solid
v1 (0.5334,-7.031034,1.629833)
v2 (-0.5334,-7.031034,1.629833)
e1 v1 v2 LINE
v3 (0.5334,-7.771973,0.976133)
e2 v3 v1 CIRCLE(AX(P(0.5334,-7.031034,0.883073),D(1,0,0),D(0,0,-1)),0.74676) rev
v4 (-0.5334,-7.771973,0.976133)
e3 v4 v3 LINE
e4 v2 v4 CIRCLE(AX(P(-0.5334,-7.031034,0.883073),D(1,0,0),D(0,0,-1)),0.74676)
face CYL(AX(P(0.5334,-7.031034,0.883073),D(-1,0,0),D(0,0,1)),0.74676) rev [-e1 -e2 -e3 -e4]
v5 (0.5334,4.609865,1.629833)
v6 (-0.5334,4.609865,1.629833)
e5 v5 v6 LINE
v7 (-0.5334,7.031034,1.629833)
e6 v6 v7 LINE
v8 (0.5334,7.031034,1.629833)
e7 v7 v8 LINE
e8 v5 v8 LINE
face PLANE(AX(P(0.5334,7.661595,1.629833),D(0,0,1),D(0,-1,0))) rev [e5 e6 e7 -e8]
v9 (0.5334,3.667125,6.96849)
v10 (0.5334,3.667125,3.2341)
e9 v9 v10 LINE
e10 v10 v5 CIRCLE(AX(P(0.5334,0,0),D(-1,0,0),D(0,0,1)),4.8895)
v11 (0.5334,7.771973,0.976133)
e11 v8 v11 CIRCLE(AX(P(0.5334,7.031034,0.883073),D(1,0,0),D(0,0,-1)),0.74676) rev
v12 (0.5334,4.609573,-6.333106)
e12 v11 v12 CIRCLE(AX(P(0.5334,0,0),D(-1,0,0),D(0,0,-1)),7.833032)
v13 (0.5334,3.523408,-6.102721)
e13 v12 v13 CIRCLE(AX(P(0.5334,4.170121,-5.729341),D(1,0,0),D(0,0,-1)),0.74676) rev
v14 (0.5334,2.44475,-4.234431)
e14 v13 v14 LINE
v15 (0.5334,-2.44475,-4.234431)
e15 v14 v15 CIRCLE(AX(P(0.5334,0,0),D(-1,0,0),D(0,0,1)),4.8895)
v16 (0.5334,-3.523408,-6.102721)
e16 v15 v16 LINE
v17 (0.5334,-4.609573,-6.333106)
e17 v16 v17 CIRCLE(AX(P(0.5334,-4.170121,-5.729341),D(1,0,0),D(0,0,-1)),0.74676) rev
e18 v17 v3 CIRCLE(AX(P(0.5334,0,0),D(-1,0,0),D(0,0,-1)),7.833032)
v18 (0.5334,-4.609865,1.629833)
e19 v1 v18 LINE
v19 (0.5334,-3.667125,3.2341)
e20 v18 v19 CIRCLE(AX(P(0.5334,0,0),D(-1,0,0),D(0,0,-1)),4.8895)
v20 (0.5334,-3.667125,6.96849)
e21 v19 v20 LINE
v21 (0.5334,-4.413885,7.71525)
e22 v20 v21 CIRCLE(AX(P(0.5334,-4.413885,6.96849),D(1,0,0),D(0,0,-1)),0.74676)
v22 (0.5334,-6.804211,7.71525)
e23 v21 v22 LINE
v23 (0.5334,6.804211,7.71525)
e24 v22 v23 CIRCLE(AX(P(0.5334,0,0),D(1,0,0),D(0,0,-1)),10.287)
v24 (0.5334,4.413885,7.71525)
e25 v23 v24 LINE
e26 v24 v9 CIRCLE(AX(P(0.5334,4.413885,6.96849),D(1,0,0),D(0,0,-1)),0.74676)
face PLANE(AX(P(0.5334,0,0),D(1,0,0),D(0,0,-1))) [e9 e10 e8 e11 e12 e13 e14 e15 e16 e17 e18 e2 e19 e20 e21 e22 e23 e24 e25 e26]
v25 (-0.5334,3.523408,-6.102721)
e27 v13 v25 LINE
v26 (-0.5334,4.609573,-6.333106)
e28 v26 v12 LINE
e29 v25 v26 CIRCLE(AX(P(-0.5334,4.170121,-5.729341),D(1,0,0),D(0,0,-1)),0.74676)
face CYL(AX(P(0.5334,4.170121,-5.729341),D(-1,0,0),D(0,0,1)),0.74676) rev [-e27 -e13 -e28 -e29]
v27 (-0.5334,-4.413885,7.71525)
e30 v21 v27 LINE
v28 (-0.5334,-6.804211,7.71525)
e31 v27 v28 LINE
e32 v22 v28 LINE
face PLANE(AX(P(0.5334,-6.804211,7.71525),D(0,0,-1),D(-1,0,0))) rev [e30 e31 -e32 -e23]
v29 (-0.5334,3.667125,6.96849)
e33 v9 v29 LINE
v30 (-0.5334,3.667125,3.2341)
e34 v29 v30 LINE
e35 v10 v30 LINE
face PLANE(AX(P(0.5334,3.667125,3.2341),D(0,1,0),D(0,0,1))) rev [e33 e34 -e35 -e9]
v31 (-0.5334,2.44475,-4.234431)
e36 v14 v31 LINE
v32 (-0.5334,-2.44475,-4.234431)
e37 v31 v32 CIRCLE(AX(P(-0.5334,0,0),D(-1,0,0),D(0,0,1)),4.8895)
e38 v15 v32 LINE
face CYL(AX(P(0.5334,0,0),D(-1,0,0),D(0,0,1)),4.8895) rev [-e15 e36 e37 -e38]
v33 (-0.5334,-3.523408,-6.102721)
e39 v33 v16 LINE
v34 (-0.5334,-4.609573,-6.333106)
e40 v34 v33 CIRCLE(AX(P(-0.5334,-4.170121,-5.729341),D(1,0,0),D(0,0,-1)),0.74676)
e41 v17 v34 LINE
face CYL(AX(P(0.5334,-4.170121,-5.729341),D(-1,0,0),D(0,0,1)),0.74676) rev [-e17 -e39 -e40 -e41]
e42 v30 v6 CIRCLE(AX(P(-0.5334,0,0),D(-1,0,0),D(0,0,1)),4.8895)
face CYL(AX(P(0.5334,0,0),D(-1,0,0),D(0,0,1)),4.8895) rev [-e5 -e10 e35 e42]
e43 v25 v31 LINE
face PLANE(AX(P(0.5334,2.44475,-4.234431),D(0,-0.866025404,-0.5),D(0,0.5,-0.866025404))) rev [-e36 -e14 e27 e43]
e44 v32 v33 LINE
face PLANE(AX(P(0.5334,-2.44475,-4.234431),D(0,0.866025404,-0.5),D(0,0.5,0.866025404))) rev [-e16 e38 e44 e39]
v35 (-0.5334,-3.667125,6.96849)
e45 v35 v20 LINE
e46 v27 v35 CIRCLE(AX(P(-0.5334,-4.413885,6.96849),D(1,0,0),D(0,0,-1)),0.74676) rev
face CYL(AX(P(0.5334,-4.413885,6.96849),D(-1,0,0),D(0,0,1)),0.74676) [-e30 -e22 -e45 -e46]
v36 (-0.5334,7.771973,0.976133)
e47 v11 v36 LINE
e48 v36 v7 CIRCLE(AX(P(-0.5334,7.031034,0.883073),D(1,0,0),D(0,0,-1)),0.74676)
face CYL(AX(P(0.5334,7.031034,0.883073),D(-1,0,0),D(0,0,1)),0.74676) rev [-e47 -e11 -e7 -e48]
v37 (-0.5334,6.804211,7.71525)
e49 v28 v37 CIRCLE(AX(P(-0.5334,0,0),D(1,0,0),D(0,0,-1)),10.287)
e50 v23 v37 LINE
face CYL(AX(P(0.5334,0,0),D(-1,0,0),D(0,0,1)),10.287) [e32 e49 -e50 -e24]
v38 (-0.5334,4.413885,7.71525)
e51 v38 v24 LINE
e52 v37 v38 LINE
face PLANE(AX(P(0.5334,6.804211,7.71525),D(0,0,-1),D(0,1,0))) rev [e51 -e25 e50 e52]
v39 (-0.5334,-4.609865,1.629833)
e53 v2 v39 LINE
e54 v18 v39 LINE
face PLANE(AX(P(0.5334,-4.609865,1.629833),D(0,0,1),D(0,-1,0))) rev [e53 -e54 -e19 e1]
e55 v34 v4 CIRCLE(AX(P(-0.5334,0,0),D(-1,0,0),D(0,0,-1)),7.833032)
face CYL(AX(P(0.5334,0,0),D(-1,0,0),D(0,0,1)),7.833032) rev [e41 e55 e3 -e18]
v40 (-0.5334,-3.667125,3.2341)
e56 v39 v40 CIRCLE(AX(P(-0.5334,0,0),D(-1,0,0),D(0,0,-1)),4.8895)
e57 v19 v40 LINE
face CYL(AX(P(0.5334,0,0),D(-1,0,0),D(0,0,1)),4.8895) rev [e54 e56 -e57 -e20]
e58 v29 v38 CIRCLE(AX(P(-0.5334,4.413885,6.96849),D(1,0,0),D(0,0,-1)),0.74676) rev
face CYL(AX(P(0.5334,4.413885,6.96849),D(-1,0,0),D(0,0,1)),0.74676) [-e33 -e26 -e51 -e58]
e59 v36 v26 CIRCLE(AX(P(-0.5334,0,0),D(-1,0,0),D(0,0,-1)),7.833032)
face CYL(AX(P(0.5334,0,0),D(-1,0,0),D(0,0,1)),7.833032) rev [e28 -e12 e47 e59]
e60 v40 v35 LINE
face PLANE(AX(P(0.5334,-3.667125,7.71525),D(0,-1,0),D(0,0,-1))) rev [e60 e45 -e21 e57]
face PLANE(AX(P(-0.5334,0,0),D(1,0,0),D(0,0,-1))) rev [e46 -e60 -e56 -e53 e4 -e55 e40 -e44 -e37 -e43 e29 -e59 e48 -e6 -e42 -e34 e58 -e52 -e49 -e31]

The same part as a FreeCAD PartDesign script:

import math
import FreeCAD as App
import Part
import Sketcher
from FreeCAD import Vector
Q = App.Units.Quantity


def edges_at(feature, points):
    """Names of the edges that pass closest to the given points."""
    edges = feature.Shape.Edges
    near = lambda p: min(range(len(edges)), key=lambda i: edges[i].distToShape(Part.Vertex(*p))[0])
    return sorted({f"Edge{near(p) + 1}" for p in points})

doc = App.newDocument("Part")
params = doc.addObject("Spreadsheet::Sheet", "Params")
for row, (alias, value) in enumerate([
    ("sketch1_radius", "0.405 in"),
    ("pad1_length", "0.042 in"),
    ("fillet_radius", "0.0294 in"),
], start=1):
    params.set(f"A{row}", alias)
    params.set(f"B{row}", "=" + value)
    params.setAlias(f"B{row}", alias)

body = doc.addObject("PartDesign::Body", "Body")

# Sketch on YZ plane
sketch1 = body.newObject("Sketcher::SketchObject", "Sketch")
sketch1.AttachmentSupport = (doc.getObject("YZ_Plane"), [""])
sketch1.MapMode = "FlatFace"
sketch1.addGeometry([
    Part.LineSegment(Vector(3.7, 7.7, 0), Vector(3.7, 3.2, 0)),  # 0
    Part.ArcOfCircle(Part.Circle(Vector(0, 0, 0), Vector(0, 0, 1), 4.9), math.radians(19), math.radians(41)),  # 1
    Part.LineSegment(Vector(4.6, 1.6, 0), Vector(7.7, 1.6, 0)),  # 2
    Part.ArcOfCircle(Part.Circle(Vector(0, 0, 0), Vector(0, 0, 1), 7.8), math.radians(-60), math.radians(12)),  # 3
    Part.LineSegment(Vector(3.9, -6.8, 0), Vector(2.4, -4.2, 0)),  # 4
    Part.ArcOfCircle(Part.Circle(Vector(0, 0, 0), Vector(0, 0, 1), 4.9), math.radians(-120), math.radians(-60)),  # 5
    Part.LineSegment(Vector(-2.4, -4.2, 0), Vector(-3.9, -6.8, 0)),  # 6
    Part.ArcOfCircle(Part.Circle(Vector(0, 0, 0), Vector(0, 0, 1), 7.8), math.radians(168), math.radians(240)),  # 7
    Part.LineSegment(Vector(-7.7, 1.6, 0), Vector(-4.6, 1.6, 0)),  # 8
    Part.ArcOfCircle(Part.Circle(Vector(0, 0, 0), Vector(0, 0, 1), 4.9), math.radians(139), math.radians(161)),  # 9
    Part.LineSegment(Vector(-3.7, 3.2, 0), Vector(-3.7, 7.7, 0)),  # 10
    Part.LineSegment(Vector(-3.7, 7.7, 0), Vector(-6.8, 7.7, 0)),  # 11
    Part.ArcOfCircle(Part.Circle(Vector(0, 0, 0), Vector(0, 0, 1), 10.3), math.radians(131), math.radians(409)),  # 12
    Part.LineSegment(Vector(6.8, 7.7, 0), Vector(3.7, 7.7, 0)),  # 13
], False)
sketch1.addConstraint([
    Sketcher.Constraint("Coincident", 0, 2, 1, 2),
    Sketcher.Constraint("Coincident", 1, 1, 2, 1),
    Sketcher.Constraint("Coincident", 2, 2, 3, 2),
    Sketcher.Constraint("Coincident", 3, 1, 4, 1),
    Sketcher.Constraint("Coincident", 4, 2, 5, 2),
    Sketcher.Constraint("Coincident", 5, 1, 6, 1),
    Sketcher.Constraint("Coincident", 6, 2, 7, 2),
    Sketcher.Constraint("Coincident", 7, 1, 8, 1),
    Sketcher.Constraint("Coincident", 8, 2, 9, 2),
    Sketcher.Constraint("Coincident", 9, 1, 10, 1),
    Sketcher.Constraint("Coincident", 10, 2, 11, 1),
    Sketcher.Constraint("Coincident", 11, 2, 12, 1),
    Sketcher.Constraint("Coincident", 12, 2, 13, 1),
    Sketcher.Constraint("Coincident", 13, 2, 0, 1),
    Sketcher.Constraint("Vertical", 0),
    Sketcher.Constraint("Horizontal", 2),
    Sketcher.Constraint("Horizontal", 8),
    Sketcher.Constraint("Vertical", 10),
    Sketcher.Constraint("Horizontal", 11),
    Sketcher.Constraint("Horizontal", 13),
    Sketcher.Constraint("Coincident", 1, 3, -1, 1),
    Sketcher.Constraint("Coincident", 3, 3, -1, 1),
    Sketcher.Constraint("Coincident", 5, 3, -1, 1),
    Sketcher.Constraint("Coincident", 7, 3, -1, 1),
    Sketcher.Constraint("Coincident", 9, 3, -1, 1),
    Sketcher.Constraint("Coincident", 12, 3, -1, 1),
    Sketcher.Constraint("Equal", 1, 5),
    Sketcher.Constraint("Equal", 3, 7),
    Sketcher.Constraint("Equal", 5, 9),
    Sketcher.Constraint("Symmetric", 10, 2, 13, 2, -2),
    Sketcher.Constraint("Horizontal", 4, 2, 5, 1),
    Sketcher.Constraint("Horizontal", 3, 1, 6, 2),
    Sketcher.Constraint("Horizontal", 2, 2, 7, 1),
    Sketcher.Constraint("Angle", 4, Q("120 deg")),
    Sketcher.Constraint("Radius", 12, Q("0.405 in")),
    Sketcher.Constraint("Radius", 1, Q("0.1925 in")),
    Sketcher.Constraint("Radius", 3, 7.833032),
    Sketcher.Constraint("DistanceX", 5, 1, 4, 2, Q("0.1925 in")),
    Sketcher.Constraint("DistanceX", 2, 1, 2, 2, 3.05173),
    Sketcher.Constraint("DistanceY", 0, 2, 0, 1, 4.48115),
    Sketcher.Constraint("DistanceY", -1, 1, 0, 2, 3.2341),
])
sketch1.setExpression("Constraints[34]", "Params.sketch1_radius")
pad1 = body.newObject("PartDesign::Pad", "Pad")
pad1.Profile = sketch1
pad1.setExpression("Length", "Params.pad1_length")
pad1.Midplane = True
doc.recompute()

fillet = body.newObject("PartDesign::Fillet", "Fillet")
fillet.Base = (pad1, edges_at(pad1, [
    (0, -3.667, 7.715),
    (0, -7.662, 1.63),
    (0, -3.917, -6.784),
    (0, 3.917, -6.784),
    (0, 7.662, 1.63),
    (0, 3.667, 7.715),
]))
fillet.setExpression("Radius", "Params.fillet_radius")

doc.recompute()
